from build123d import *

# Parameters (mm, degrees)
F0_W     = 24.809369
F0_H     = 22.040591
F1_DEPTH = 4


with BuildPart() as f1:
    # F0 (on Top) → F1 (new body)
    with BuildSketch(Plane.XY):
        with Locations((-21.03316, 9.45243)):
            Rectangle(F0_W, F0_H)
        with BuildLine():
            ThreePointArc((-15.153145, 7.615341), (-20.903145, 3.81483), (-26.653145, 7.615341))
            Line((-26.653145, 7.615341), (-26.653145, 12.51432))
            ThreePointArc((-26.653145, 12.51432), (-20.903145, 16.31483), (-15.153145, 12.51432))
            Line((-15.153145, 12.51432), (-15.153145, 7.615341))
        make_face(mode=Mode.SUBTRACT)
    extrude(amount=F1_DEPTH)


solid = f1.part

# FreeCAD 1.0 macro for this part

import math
import FreeCAD as App
import Part
import Sketcher

V = App.Vector
Q = App.Units.Quantity

doc = App.newDocument("Part")
body = doc.addObject("PartDesign::Body", "Body")

sketch1 = body.newObject("Sketcher::SketchObject", "Sketch")
sketch1.AttachmentSupport = (doc.getObject("XY_Plane"), [""])
sketch1.MapMode = "FlatFace"
sketch1.addGeometry([
    Part.LineSegment(V(-33.4, 20.5, 0), V(-33.4, -1.6, 0)),
    Part.LineSegment(V(-33.4, -1.6, 0), V(-8.6, -1.6, 0)),
    Part.LineSegment(V(-8.6, -1.6, 0), V(-8.6, 20.5, 0)),
    Part.LineSegment(V(-8.6, 20.5, 0), V(-33.4, 20.5, 0)),
    Part.LineSegment(V(-15.2, 12.5, 0), V(-15.2, 7.6, 0)),
    Part.ArcOfCircle(Part.Circle(V(-20.9, 10.1, 0), V(0, 0, 1), 6.2), math.radians(-157), math.radians(-23)),
    Part.LineSegment(V(-26.7, 7.6, 0), V(-26.7, 12.5, 0)),
    Part.ArcOfCircle(Part.Circle(V(-20.9, 10.1, 0), V(0, 0, 1), 6.3), math.radians(23), math.radians(157)),
], False)
sketch1.addConstraint([
    Sketcher.Constraint("Coincident", 0, 2, 1, 1),
    Sketcher.Constraint("Coincident", 1, 2, 2, 1),
    Sketcher.Constraint("Coincident", 2, 2, 3, 1),
    Sketcher.Constraint("Coincident", 3, 2, 0, 1),
    Sketcher.Constraint("Coincident", 4, 2, 5, 2),
    Sketcher.Constraint("Coincident", 5, 1, 6, 1),
    Sketcher.Constraint("Coincident", 6, 2, 7, 2),
    Sketcher.Constraint("Coincident", 7, 1, 4, 1),
    Sketcher.Constraint("Vertical", 0),
    Sketcher.Constraint("Horizontal", 1),
    Sketcher.Constraint("Vertical", 2),
    Sketcher.Constraint("Horizontal", 3),
    Sketcher.Constraint("Vertical", 4),
    Sketcher.Constraint("Vertical", 6),
    Sketcher.Constraint("Coincident", 7, 3, 5, 3),
    Sketcher.Constraint("Equal", 5, 7),
    Sketcher.Constraint("Horizontal", 4, 2, 5, 1),
    Sketcher.Constraint("Radius", 5, Q("6.25 mm")),
    Sketcher.Constraint("DistanceX", 5, 1, 4, 2, Q("11.5 mm")),
    Sketcher.Constraint("DistanceX", 1, 1, 1, 2, Q("24.809369 mm")),
    Sketcher.Constraint("DistanceY", 0, 2, 0, 1, Q("22.040591 mm")),
    Sketcher.Constraint("DistanceX", 0, 2, 5, 3, Q("12.534699 mm")),
    Sketcher.Constraint("DistanceY", -1, 1, 5, 3, Q("10.06483 mm")),
    Sketcher.Constraint("DistanceX", 5, 3, -1, 1, Q("20.903145 mm")),
    Sketcher.Constraint("DistanceY", 0, 2, -1, 1, Q("1.567865 mm")),
])
pad1 = body.newObject("PartDesign::Pad", "Pad")
pad1.Profile = sketch1
pad1.Length = 4

doc.recompute()
